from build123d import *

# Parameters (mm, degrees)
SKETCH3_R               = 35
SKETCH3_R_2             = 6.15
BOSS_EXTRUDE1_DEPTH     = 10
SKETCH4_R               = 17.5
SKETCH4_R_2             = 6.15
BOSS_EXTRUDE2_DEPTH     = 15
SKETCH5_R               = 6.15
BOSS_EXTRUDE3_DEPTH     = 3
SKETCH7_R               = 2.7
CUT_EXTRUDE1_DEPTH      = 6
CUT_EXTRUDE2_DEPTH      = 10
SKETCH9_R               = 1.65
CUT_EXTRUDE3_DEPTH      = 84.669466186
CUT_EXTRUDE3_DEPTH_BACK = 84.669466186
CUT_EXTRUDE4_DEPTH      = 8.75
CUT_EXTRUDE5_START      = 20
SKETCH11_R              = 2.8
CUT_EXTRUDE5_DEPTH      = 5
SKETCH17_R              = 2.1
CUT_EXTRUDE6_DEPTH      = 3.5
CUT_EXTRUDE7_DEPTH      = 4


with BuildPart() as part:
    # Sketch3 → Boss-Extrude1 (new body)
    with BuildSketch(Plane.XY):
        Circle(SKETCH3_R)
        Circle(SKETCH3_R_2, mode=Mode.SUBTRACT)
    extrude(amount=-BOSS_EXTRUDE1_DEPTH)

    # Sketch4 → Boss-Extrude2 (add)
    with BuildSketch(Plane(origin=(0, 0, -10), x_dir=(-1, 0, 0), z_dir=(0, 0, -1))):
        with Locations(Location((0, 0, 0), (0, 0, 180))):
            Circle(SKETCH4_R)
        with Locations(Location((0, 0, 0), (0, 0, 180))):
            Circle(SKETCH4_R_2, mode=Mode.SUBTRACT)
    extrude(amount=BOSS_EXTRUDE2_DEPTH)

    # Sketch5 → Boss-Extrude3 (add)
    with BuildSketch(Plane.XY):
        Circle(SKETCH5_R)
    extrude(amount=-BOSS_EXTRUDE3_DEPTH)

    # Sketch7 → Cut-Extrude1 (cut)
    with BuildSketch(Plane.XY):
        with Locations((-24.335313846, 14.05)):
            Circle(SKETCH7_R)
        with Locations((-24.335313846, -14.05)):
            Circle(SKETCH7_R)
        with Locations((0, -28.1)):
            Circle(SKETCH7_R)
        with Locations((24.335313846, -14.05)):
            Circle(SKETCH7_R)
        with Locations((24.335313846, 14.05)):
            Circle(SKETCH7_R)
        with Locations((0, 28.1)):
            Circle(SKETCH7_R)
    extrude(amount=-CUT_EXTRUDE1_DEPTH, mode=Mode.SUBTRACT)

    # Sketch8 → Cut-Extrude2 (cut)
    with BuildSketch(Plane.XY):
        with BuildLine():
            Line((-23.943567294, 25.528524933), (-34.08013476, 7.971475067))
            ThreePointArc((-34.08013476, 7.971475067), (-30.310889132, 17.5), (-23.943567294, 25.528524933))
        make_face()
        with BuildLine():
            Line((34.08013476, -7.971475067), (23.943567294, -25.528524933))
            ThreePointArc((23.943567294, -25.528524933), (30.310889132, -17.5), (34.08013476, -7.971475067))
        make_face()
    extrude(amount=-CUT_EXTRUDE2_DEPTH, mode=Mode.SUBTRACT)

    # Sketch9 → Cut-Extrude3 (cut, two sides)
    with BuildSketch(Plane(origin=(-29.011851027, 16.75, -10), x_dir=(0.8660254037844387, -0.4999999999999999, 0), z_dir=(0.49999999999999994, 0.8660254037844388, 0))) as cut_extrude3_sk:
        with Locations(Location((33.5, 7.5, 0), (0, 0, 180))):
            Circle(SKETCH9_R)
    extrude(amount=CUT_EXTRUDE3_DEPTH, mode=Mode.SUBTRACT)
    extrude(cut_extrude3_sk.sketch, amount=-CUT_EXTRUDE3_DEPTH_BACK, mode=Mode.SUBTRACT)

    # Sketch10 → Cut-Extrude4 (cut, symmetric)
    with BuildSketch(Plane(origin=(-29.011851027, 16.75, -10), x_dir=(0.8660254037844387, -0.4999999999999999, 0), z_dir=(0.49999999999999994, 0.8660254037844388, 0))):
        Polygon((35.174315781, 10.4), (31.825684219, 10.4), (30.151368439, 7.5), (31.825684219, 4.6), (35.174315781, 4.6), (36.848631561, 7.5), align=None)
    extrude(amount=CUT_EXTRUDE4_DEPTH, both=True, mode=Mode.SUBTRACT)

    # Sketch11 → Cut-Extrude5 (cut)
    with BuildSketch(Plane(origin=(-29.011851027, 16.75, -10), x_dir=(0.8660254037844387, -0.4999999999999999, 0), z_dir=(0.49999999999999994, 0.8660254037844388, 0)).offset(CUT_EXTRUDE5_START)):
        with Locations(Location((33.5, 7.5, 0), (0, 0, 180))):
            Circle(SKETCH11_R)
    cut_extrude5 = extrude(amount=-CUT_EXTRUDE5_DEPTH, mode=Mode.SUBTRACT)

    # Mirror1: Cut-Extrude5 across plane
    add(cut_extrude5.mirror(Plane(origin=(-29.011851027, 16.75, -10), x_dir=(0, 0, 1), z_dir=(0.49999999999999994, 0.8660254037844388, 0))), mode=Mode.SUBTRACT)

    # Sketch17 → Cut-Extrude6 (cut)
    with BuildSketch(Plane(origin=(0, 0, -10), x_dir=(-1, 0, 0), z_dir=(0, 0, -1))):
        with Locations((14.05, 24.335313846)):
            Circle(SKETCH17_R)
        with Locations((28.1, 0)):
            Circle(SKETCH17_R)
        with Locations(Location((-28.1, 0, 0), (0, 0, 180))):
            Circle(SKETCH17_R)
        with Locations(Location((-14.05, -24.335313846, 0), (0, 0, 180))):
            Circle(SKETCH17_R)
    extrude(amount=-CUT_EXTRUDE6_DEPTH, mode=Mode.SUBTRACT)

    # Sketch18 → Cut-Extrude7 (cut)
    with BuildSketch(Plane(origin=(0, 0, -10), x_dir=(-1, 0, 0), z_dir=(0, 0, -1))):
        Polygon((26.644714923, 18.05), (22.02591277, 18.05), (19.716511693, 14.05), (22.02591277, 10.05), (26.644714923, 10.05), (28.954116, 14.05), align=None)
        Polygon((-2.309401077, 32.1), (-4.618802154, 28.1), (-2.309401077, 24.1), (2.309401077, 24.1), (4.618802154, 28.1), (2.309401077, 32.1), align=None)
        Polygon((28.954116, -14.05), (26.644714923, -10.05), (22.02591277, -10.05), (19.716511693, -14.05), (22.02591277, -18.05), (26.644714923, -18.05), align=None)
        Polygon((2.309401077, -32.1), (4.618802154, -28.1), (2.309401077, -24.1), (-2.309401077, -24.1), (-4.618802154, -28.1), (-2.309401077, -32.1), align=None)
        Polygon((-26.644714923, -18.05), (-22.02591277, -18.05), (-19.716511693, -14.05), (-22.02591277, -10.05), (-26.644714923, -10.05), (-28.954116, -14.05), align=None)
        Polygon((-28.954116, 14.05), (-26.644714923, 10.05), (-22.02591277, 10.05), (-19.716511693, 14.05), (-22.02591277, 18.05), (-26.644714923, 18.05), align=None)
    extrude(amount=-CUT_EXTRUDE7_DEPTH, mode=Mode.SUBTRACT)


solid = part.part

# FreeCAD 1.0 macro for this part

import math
import FreeCAD as App
import Part
import Sketcher
Q = App.Units.Quantity


def add_polygon(sketch, points):
    """Adds a closed chain of lines whose ends are joined by coincident constraints."""
    first, n = sketch.GeometryCount, len(points)
    for a, b in zip(points, points[1:] + points[:1]):
        sketch.addGeometry(Part.LineSegment(App.Vector(*a, 0), App.Vector(*b, 0)), False)
    for i in range(n):
        sketch.addConstraint(Sketcher.Constraint("Coincident", first + i, 2, first + (i + 1) % n, 1))

doc = App.newDocument("Part")
body = doc.addObject("PartDesign::Body", "Body")

sketch1 = doc.addObject("Sketcher::SketchObject", "Sketch")
body.addObject(sketch1)
sketch1.AttachmentSupport = (doc.XY_Plane, [""])
sketch1.MapMode = "FlatFace"
sketch1.addGeometry([
    Part.Circle(App.Vector(0, 0, 0), App.Vector(0, 0, 1), 35),
    Part.Circle(App.Vector(0, 0, 0), App.Vector(0, 0, 1), 6),
], False)
sketch1.addConstraint([
    Sketcher.Constraint("Coincident", 0, 3, -1, 1),
    Sketcher.Constraint("Coincident", 1, 3, -1, 1),
    Sketcher.Constraint("Diameter", 0, 70.0),
    Sketcher.Constraint("Diameter", 1, 12.3),
])
pad1 = doc.addObject("PartDesign::Pad", "Pad")
body.addObject(pad1)
pad1.Profile = sketch1
pad1.Length = 10
pad1.Reversed = True

sketch2 = doc.addObject("Sketcher::SketchObject", "Sketch001")
body.addObject(sketch2)
sketch2.AttachmentSupport = (doc.XY_Plane, [""])
sketch2.MapMode = "FlatFace"
sketch2.AttachmentOffset = App.Placement(App.Vector(0, 0, -10), App.Rotation())
sketch2.addGeometry([
    Part.Circle(App.Vector(0, 0, 0), App.Vector(0, 0, 1), 18),
    Part.Circle(App.Vector(0, 0, 0), App.Vector(0, 0, 1), 6),
], False)
sketch2.addConstraint([
    Sketcher.Constraint("Coincident", 0, 3, -1, 1),
    Sketcher.Constraint("Coincident", 1, 3, -1, 1),
    Sketcher.Constraint("Diameter", 0, 35.0),
    Sketcher.Constraint("Diameter", 1, 12.3),
])
pad2 = doc.addObject("PartDesign::Pad", "Pad001")
body.addObject(pad2)
pad2.Profile = sketch2
pad2.Length = 15
pad2.Reversed = True

sketch3 = doc.addObject("Sketcher::SketchObject", "Sketch002")
body.addObject(sketch3)
sketch3.AttachmentSupport = (doc.XY_Plane, [""])
sketch3.MapMode = "FlatFace"
sketch3.addGeometry(Part.Circle(App.Vector(0, 0, 0), App.Vector(0, 0, 1), 6), False)
sketch3.addConstraint([
    Sketcher.Constraint("Coincident", 0, 3, -1, 1),
    Sketcher.Constraint("Diameter", 0, 12.3),
])
pad3 = doc.addObject("PartDesign::Pad", "Pad002")
body.addObject(pad3)
pad3.Profile = sketch3
pad3.Length = 3
pad3.Reversed = True

sketch4 = doc.addObject("Sketcher::SketchObject", "Sketch003")
body.addObject(sketch4)
sketch4.AttachmentSupport = (doc.XY_Plane, [""])
sketch4.MapMode = "FlatFace"
sketch4.addGeometry([
    Part.Circle(App.Vector(-24.3, 14.1, 0), App.Vector(0, 0, 1), 2.7),
    Part.Circle(App.Vector(-24.3, -14.1, 0), App.Vector(0, 0, 1), 2.7),
    Part.Circle(App.Vector(0, -28.1, 0), App.Vector(0, 0, 1), 2.7),
    Part.Circle(App.Vector(24.3, -14.1, 0), App.Vector(0, 0, 1), 2.7),
    Part.Circle(App.Vector(24.3, 14.1, 0), App.Vector(0, 0, 1), 2.7),
    Part.Circle(App.Vector(0, 28.1, 0), App.Vector(0, 0, 1), 2.7),
], False)
sketch4.addConstraint([
    Sketcher.Constraint("Equal", 0, 1),
    Sketcher.Constraint("Equal", 1, 2),
    Sketcher.Constraint("Equal", 2, 3),
    Sketcher.Constraint("Equal", 3, 4),
    Sketcher.Constraint("Equal", 4, 5),
    Sketcher.Constraint("Symmetric", 0, 3, 3, 3, -1, 1),
    Sketcher.Constraint("Symmetric", 1, 3, 4, 3, -1, 1),
    Sketcher.Constraint("Symmetric", 2, 3, 5, 3, -1, 1),
    Sketcher.Constraint("Symmetric", 1, 3, 3, 3, -2),
    Sketcher.Constraint("PointOnObject", 2, 3, -2),
    Sketcher.Constraint("Diameter", 0, 5.4),
    Sketcher.Constraint("DistanceY", 2, 3, -1, 1, 28.1),
    Sketcher.Constraint("DistanceY", 1, 3, 0, 3, 28.1),
    Sketcher.Constraint("DistanceX", 0, 3, -1, 1, 24.335314),
])
pocket1 = doc.addObject("PartDesign::Pocket", "Pocket")
body.addObject(pocket1)
pocket1.Profile = sketch4
pocket1.Length = 6

sketch5 = doc.addObject("Sketcher::SketchObject", "Sketch004")
body.addObject(sketch5)
sketch5.AttachmentSupport = (doc.XY_Plane, [""])
sketch5.MapMode = "FlatFace"
sketch5.addGeometry([
    Part.LineSegment(App.Vector(-34, 8, 0), App.Vector(-24, 26, 0)),
    Part.ArcOfCircle(Part.Circle(App.Vector(0, 0, 0), App.Vector(0, 0, 1), 35), math.radians(133), math.radians(167)),
    Part.LineSegment(App.Vector(34, -8, 0), App.Vector(24, -26, 0)),
    Part.ArcOfCircle(Part.Circle(App.Vector(0, 0, 0), App.Vector(0, 0, 1), 35), math.radians(-47), math.radians(-13)),
], False)
sketch5.addConstraint([
    Sketcher.Constraint("Coincident", 0, 1, 1, 2),
    Sketcher.Constraint("Coincident", 1, 1, 0, 2),
    Sketcher.Constraint("Coincident", 2, 1, 3, 2),
    Sketcher.Constraint("Coincident", 3, 1, 2, 2),
    Sketcher.Constraint("Coincident", 1, 3, -1, 1),
    Sketcher.Constraint("Coincident", 3, 3, -1, 1),
    Sketcher.Constraint("Equal", 1, 3),
    Sketcher.Constraint("Parallel", 0, 2),
    Sketcher.Constraint("Equal", 0, 2),
    Sketcher.Constraint("Radius", 1, 35.0),
    Sketcher.Constraint("Angle", 0, Q("60 deg")),
    Sketcher.Constraint("DistanceY", 2, 1, 1, 1, 33.5),
])
pocket2 = doc.addObject("PartDesign::Pocket", "Pocket001")
body.addObject(pocket2)
pocket2.Profile = sketch5
pocket2.Length = 10

sketch6 = doc.addObject("Sketcher::SketchObject", "Sketch005")
body.addObject(sketch6)
sketch6.Placement = App.Placement(App.Vector(-29.011851, 16.75, -10), App.Rotation(App.Vector(0.866025404, -0.5, 0), App.Vector(0, 0, -1), App.Vector(0.5, 0.866025404, 0), "ZXY"))
sketch6.addGeometry(Part.Circle(App.Vector(33.5, 7.5, 0), App.Vector(0, 0, 1), 1.6), False)
sketch6.addConstraint([
    Sketcher.Constraint("Diameter", 0, 3.3),
    Sketcher.Constraint("DistanceX", -1, 1, 0, 3, 33.5),
    Sketcher.Constraint("DistanceY", -1, 1, 0, 3, 7.5),
])
pocket3 = doc.addObject("PartDesign::Pocket", "Pocket002")
body.addObject(pocket3)
pocket3.Profile = sketch6
pocket3.Type = "ThroughAll"
pocket3.Midplane = True

sketch7 = doc.addObject("Sketcher::SketchObject", "Sketch006")
body.addObject(sketch7)
sketch7.Placement = App.Placement(App.Vector(-29.011851, 16.75, -10), App.Rotation(App.Vector(0.866025404, -0.5, 0), App.Vector(0, 0, -1), App.Vector(0.5, 0.866025404, 0), "ZXY"))
add_polygon(sketch7, [(35.2, 10.4), (31.8, 10.4), (30.2, 7.5), (31.8, 4.6), (35.2, 4.6), (36.8, 7.5)])
sketch7.addConstraint([
    Sketcher.Constraint("Horizontal", 0),
    Sketcher.Constraint("Horizontal", 3),
    Sketcher.Constraint("Parallel", 1, 4),
    Sketcher.Constraint("Parallel", 2, 5),
    Sketcher.Constraint("Horizontal", 1, 2, 4, 2),
    Sketcher.Constraint("Vertical", 0, 2, 2, 2),
    Sketcher.Constraint("Vertical", 3, 2, 5, 2),
    Sketcher.Constraint("Angle", 1, Q("-120 deg")),
    Sketcher.Constraint("DistanceY", -1, 1, 0, 2, 10.4),
    Sketcher.Constraint("DistanceY", -1, 1, 1, 2, 7.5),
    Sketcher.Constraint("DistanceX", 0, 2, 0, 1, 3.348632),
    Sketcher.Constraint("DistanceX", -1, 1, 1, 2, 30.151368),
])
pocket4 = doc.addObject("PartDesign::Pocket", "Pocket003")
body.addObject(pocket4)
pocket4.Profile = sketch7
pocket4.Length = 17.5
pocket4.Midplane = True

sketch8 = doc.addObject("Sketcher::SketchObject", "Sketch007")
body.addObject(sketch8)
sketch8.Placement = App.Placement(App.Vector(-19.011851, 34.070508, -10), App.Rotation(App.Vector(0.866025404, -0.5, 0), App.Vector(0, 0, -1), App.Vector(0.5, 0.866025404, 0), "ZXY"))
sketch8.addGeometry(Part.Circle(App.Vector(33.5, 7.5, 0), App.Vector(0, 0, 1), 2.8), False)
sketch8.addConstraint([
    Sketcher.Constraint("Diameter", 0, 5.6),
    Sketcher.Constraint("DistanceX", -1, 1, 0, 3, 33.5),
    Sketcher.Constraint("DistanceY", -1, 1, 0, 3, 7.5),
])
pocket5 = doc.addObject("PartDesign::Pocket", "Pocket004")
body.addObject(pocket5)
pocket5.Profile = sketch8
pocket5.Length = 5
doc.recompute()

datumplane = doc.addObject("PartDesign::Plane", "DatumPlane")
body.addObject(datumplane)
datumplane.Placement = App.Placement(App.Vector(0, 0, 0), App.Rotation(App.Vector(0.866025404, -0.5, 0), App.Vector(0, 0, -1), App.Vector(0.5, 0.866025404, 0), "ZXY"))
mirrored = doc.addObject("PartDesign::Mirrored", "Mirrored")
body.addObject(mirrored)
mirrored.Originals = [pocket5]
mirrored.MirrorPlane = (datumplane, [""])
body.Tip = mirrored

sketch9 = doc.addObject("Sketcher::SketchObject", "Sketch008")
body.addObject(sketch9)
sketch9.AttachmentSupport = (doc.XY_Plane, [""])
sketch9.MapMode = "FlatFace"
sketch9.AttachmentOffset = App.Placement(App.Vector(0, 0, -10), App.Rotation())
sketch9.addGeometry([
    Part.Circle(App.Vector(-14.1, 24.3, 0), App.Vector(0, 0, 1), 2.1),
    Part.Circle(App.Vector(-28.1, 0, 0), App.Vector(0, 0, 1), 2.1),
    Part.Circle(App.Vector(28.1, 0, 0), App.Vector(0, 0, 1), 2.1),
    Part.Circle(App.Vector(14.1, -24.3, 0), App.Vector(0, 0, 1), 2.1),
], False)
sketch9.addConstraint([
    Sketcher.Constraint("Equal", 0, 1),
    Sketcher.Constraint("Equal", 1, 2),
    Sketcher.Constraint("Equal", 2, 3),
    Sketcher.Constraint("Symmetric", 1, 3, 2, 3, -1, 1),
    Sketcher.Constraint("Symmetric", 0, 3, 3, 3, -1, 1),
    Sketcher.Constraint("PointOnObject", 1, 3, -1),
    Sketcher.Constraint("Diameter", 0, 4.2),
    Sketcher.Constraint("DistanceX", 1, 3, -1, 1, 28.1),
    Sketcher.Constraint("DistanceX", 0, 3, 3, 3, 28.1),
    Sketcher.Constraint("DistanceY", -1, 1, 0, 3, 24.335314),
])
pocket6 = doc.addObject("PartDesign::Pocket", "Pocket005")
body.addObject(pocket6)
pocket6.Profile = sketch9
pocket6.Length = 3.5
pocket6.Reversed = True

sketch10 = doc.addObject("Sketcher::SketchObject", "Sketch009")
body.addObject(sketch10)
sketch10.AttachmentSupport = (doc.XY_Plane, [""])
sketch10.MapMode = "FlatFace"
sketch10.AttachmentOffset = App.Placement(App.Vector(0, 0, -10), App.Rotation())
add_polygon(sketch10, [(-26.6, 18.1), (-22, 18.1), (-19.7, 14.1), (-22, 10.1), (-26.6, 10.1), (-29, 14.1)])
add_polygon(sketch10, [(2.3, 32.1), (4.6, 28.1), (2.3, 24.1), (-2.3, 24.1), (-4.6, 28.1), (-2.3, 32.1)])
add_polygon(sketch10, [(-29, -14.1), (-26.6, -10.1), (-22, -10.1), (-19.7, -14.1), (-22, -18.1), (-26.6, -18.1)])
add_polygon(sketch10, [(-2.3, -32.1), (-4.6, -28.1), (-2.3, -24.1), (2.3, -24.1), (4.6, -28.1), (2.3, -32.1)])
add_polygon(sketch10, [(26.6, -18.1), (22, -18.1), (19.7, -14.1), (22, -10.1), (26.6, -10.1), (29, -14.1)])
add_polygon(sketch10, [(29, 14.1), (26.6, 10.1), (22, 10.1), (19.7, 14.1), (22, 18.1), (26.6, 18.1)])
sketch10.addConstraint([
    Sketcher.Constraint("Horizontal", 0),
    Sketcher.Constraint("Horizontal", 3),
    Sketcher.Constraint("Horizontal", 8),
    Sketcher.Constraint("Horizontal", 11),
    Sketcher.Constraint("Horizontal", 13),
    Sketcher.Constraint("Horizontal", 16),
    Sketcher.Constraint("Horizontal", 20),
    Sketcher.Constraint("Horizontal", 23),
    Sketcher.Constraint("Horizontal", 24),
    Sketcher.Constraint("Horizontal", 27),
    Sketcher.Constraint("Horizontal", 31),
    Sketcher.Constraint("Horizontal", 34),
    Sketcher.Constraint("Symmetric", 6, 2, 18, 2, -1, 1),
    Sketcher.Constraint("Symmetric", 7, 2, 19, 2, -1, 1),
    Sketcher.Constraint("Symmetric", 9, 2, 21, 2, -1, 1),
    Sketcher.Constraint("Symmetric", 10, 2, 22, 2, -1, 1),
    Sketcher.Constraint("Symmetric", 0, 2, 24, 2, -1, 1),
    Sketcher.Constraint("Symmetric", 1, 2, 25, 2, -1, 1),
    Sketcher.Constraint("Symmetric", 2, 2, 26, 2, -1, 1),
    Sketcher.Constraint("Symmetric", 4, 2, 28, 2, -1, 1),
    Sketcher.Constraint("Symmetric", 12, 2, 30, 2, -1, 1),
    Sketcher.Constraint("Symmetric", 14, 2, 32, 2, -1, 1),
    Sketcher.Constraint("Symmetric", 15, 2, 33, 2, -1, 1),
    Sketcher.Constraint("Symmetric", 17, 2, 35, 2, -1, 1),
    Sketcher.Constraint("Symmetric", 6, 2, 9, 2, -2),
    Sketcher.Constraint("Symmetric", 15, 2, 24, 2, -2),
    Sketcher.Constraint("Symmetric", 14, 2, 25, 2, -2),
    Sketcher.Constraint("Symmetric", 13, 2, 26, 2, -2),
    Sketcher.Constraint("Symmetric", 17, 2, 28, 2, -2),
    Sketcher.Constraint("Parallel", 1, 4),
    Sketcher.Constraint("Parallel", 2, 5),
    Sketcher.Constraint("Parallel", 4, 6),
    Sketcher.Constraint("Parallel", 5, 7),
    Sketcher.Constraint("Parallel", 6, 9),
    Sketcher.Constraint("Parallel", 7, 10),
    Sketcher.Constraint("Parallel", 10, 12),
    Sketcher.Constraint("Parallel", 9, 14),
    Sketcher.Constraint("Parallel", 14, 17),
    Sketcher.Constraint("Parallel", 17, 18),
    Sketcher.Constraint("Parallel", 18, 21),
    Sketcher.Constraint("Parallel", 25, 28),
    Sketcher.Constraint("Parallel", 26, 29),
    Sketcher.Constraint("Parallel", 28, 32),
    Sketcher.Constraint("Parallel", 32, 35),
    Sketcher.Constraint("Horizontal", 1, 2, 4, 2),
    Sketcher.Constraint("Vertical", 0, 2, 2, 2),
    Sketcher.Constraint("Vertical", 8, 2, 10, 2),
    Sketcher.Constraint("Equal", 3, 8),
    Sketcher.Constraint("Equal", 5, 6),
    Sketcher.Constraint("Angle", 1, Q("-60 deg")),
    Sketcher.Constraint("DistanceY", 1, 2, 0, 2, 4.0),
    Sketcher.Constraint("DistanceY", -1, 1, 6, 2, 28.1),
    Sketcher.Constraint("DistanceY", 12, 2, 3, 2, 20.1),
    Sketcher.Constraint("DistanceX", -1, 1, 7, 2, 2.309401),
    Sketcher.Constraint("DistanceX", 1, 2, -1, 1, 19.716512),
])
pocket7 = doc.addObject("PartDesign::Pocket", "Pocket006")
body.addObject(pocket7)
pocket7.Profile = sketch10
pocket7.Length = 4
pocket7.Reversed = True

doc.recompute()
